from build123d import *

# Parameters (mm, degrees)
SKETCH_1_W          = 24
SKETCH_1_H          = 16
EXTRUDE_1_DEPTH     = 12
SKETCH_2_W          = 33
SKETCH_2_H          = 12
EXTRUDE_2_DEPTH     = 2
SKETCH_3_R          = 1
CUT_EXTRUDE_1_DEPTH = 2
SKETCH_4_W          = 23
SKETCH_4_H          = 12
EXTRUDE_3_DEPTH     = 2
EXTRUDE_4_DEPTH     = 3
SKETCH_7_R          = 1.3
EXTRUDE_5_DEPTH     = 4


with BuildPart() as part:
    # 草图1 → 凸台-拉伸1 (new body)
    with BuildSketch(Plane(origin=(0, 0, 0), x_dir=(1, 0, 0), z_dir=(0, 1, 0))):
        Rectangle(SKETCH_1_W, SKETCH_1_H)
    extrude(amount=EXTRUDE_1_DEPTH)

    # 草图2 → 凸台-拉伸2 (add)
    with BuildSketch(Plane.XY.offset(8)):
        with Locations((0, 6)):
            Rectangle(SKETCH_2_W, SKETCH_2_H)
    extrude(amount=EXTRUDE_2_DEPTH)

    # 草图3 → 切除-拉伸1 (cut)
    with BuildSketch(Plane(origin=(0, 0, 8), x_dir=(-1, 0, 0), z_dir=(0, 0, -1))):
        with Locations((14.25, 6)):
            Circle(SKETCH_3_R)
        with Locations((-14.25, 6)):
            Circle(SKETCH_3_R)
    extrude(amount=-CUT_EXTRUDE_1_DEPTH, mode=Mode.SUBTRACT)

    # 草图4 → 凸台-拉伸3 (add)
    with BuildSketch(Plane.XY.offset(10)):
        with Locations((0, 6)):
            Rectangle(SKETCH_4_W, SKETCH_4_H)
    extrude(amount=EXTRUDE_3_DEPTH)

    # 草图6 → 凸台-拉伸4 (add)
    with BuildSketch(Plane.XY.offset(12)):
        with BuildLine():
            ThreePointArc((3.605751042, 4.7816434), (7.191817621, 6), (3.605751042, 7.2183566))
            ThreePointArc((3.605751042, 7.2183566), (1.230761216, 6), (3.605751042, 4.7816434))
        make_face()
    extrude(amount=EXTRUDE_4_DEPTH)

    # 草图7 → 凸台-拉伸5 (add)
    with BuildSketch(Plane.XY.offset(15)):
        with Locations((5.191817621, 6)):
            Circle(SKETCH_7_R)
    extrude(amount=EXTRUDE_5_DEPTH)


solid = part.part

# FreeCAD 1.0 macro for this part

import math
import FreeCAD as App
import Part
import Sketcher


def add_polygon(sketch, points):
    """Adds a closed chain of lines whose ends are joined by coincident constraints."""
    first, n = sketch.GeometryCount, len(points)
    for a, b in zip(points, points[1:] + points[:1]):
        sketch.addGeometry(Part.LineSegment(App.Vector(*a, 0), App.Vector(*b, 0)), False)
    for i in range(n):
        sketch.addConstraint(Sketcher.Constraint("Coincident", first + i, 2, first + (i + 1) % n, 1))

doc = App.newDocument("Part")
body = doc.addObject("PartDesign::Body", "Body")

sketch1 = body.newObject("Sketcher::SketchObject", "Sketch")
sketch1.AttachmentSupport = (doc.getObject("XZ_Plane"), [""])
sketch1.MapMode = "FlatFace"
add_polygon(sketch1, [(-12, -8), (-12, 8), (12, 8), (12, -8)])
sketch1.addConstraint([
    Sketcher.Constraint("Vertical", 0),
    Sketcher.Constraint("Horizontal", 1),
    Sketcher.Constraint("Vertical", 2),
    Sketcher.Constraint("Horizontal", 3),
    Sketcher.Constraint("Symmetric", 0, 2, 2, 2, -1, 1),
    Sketcher.Constraint("DistanceX", 1, 1, 1, 2, 24.0),
    Sketcher.Constraint("DistanceY", 0, 1, 0, 2, 16.0),
])
pad1 = body.newObject("PartDesign::Pad", "Pad")
pad1.Profile = sketch1
pad1.Length = 12
pad1.Reversed = True

sketch2 = body.newObject("Sketcher::SketchObject", "Sketch001")
sketch2.AttachmentSupport = (doc.getObject("XY_Plane"), [""])
sketch2.MapMode = "FlatFace"
sketch2.AttachmentOffset = App.Placement(App.Vector(0, 0, 8), App.Rotation())
add_polygon(sketch2, [(-16.5, 12), (-16.5, 0), (16.5, 0), (16.5, 12)])
sketch2.addConstraint([
    Sketcher.Constraint("Vertical", 0),
    Sketcher.Constraint("Horizontal", 1),
    Sketcher.Constraint("Vertical", 2),
    Sketcher.Constraint("Horizontal", 3),
    Sketcher.Constraint("Symmetric", 0, 2, 1, 2, -1, 1),
    Sketcher.Constraint("DistanceX", 1, 1, 1, 2, 33.0),
    Sketcher.Constraint("DistanceY", 0, 2, 0, 1, 12.0),
])
pad2 = body.newObject("PartDesign::Pad", "Pad001")
pad2.Profile = sketch2
pad2.Length = 2

sketch3 = body.newObject("Sketcher::SketchObject", "Sketch002")
sketch3.AttachmentSupport = (doc.getObject("XY_Plane"), [""])
sketch3.MapMode = "FlatFace"
sketch3.AttachmentOffset = App.Placement(App.Vector(0, 0, 8), App.Rotation())
sketch3.addGeometry([
    Part.Circle(App.Vector(-14.25, 6, 0), App.Vector(0, 0, 1), 1),
    Part.Circle(App.Vector(14.25, 6, 0), App.Vector(0, 0, 1), 1),
], False)
sketch3.addConstraint([
    Sketcher.Constraint("Equal", 0, 1),
    Sketcher.Constraint("Symmetric", 0, 3, 1, 3, -2),
    Sketcher.Constraint("Diameter", 0, 2.0),
    Sketcher.Constraint("DistanceY", -1, 1, 0, 3, 6.0),
    Sketcher.Constraint("DistanceX", 0, 3, 1, 3, 28.5),
])
pocket1 = body.newObject("PartDesign::Pocket", "Pocket")
pocket1.Profile = sketch3
pocket1.Length = 2
pocket1.Reversed = True

sketch4 = body.newObject("Sketcher::SketchObject", "Sketch003")
sketch4.AttachmentSupport = (doc.getObject("XY_Plane"), [""])
sketch4.MapMode = "FlatFace"
sketch4.AttachmentOffset = App.Placement(App.Vector(0, 0, 10), App.Rotation())
add_polygon(sketch4, [(-11.5, 12), (-11.5, 0), (11.5, 0), (11.5, 12)])
sketch4.addConstraint([
    Sketcher.Constraint("Vertical", 0),
    Sketcher.Constraint("Horizontal", 1),
    Sketcher.Constraint("Vertical", 2),
    Sketcher.Constraint("Horizontal", 3),
    Sketcher.Constraint("Symmetric", 0, 2, 1, 2, -1, 1),
    Sketcher.Constraint("DistanceX", 1, 1, 1, 2, 23.0),
    Sketcher.Constraint("DistanceY", 0, 2, 0, 1, 12.0),
])
pad3 = body.newObject("PartDesign::Pad", "Pad002")
pad3.Profile = sketch4
pad3.Length = 2

sketch5 = body.newObject("Sketcher::SketchObject", "Sketch004")
sketch5.AttachmentSupport = (doc.getObject("XY_Plane"), [""])
sketch5.MapMode = "FlatFace"
sketch5.AttachmentOffset = App.Placement(App.Vector(0, 0, 12), App.Rotation())
sketch5.addGeometry([
    Part.ArcOfCircle(Part.Circle(App.Vector(5.191818, 6, 0), App.Vector(0, 0, 1), 2), math.radians(-142.469888), math.radians(142.469888)),
    Part.ArcOfCircle(Part.Circle(App.Vector(2.730761, 6, 0), App.Vector(0, 0, 1), 1.5), math.radians(54.315144), math.radians(305.684856)),
], False)
sketch5.addConstraint([
    Sketcher.Constraint("Coincident", 0, 1, 1, 2),
    Sketcher.Constraint("Coincident", 1, 1, 0, 2),
    Sketcher.Constraint("Horizontal", 0, 3, 1, 3),
    Sketcher.Constraint("Radius", 0, 2.0),
    Sketcher.Constraint("Radius", 1, 1.5),
    Sketcher.Constraint("DistanceY", -1, 1, 0, 3, 6.0),
    Sketcher.Constraint("DistanceX", -1, 1, 1, 3, 2.730761),
    Sketcher.Constraint("DistanceX", -1, 1, 0, 1, 3.605751),
])
pad4 = body.newObject("PartDesign::Pad", "Pad003")
pad4.Profile = sketch5
pad4.Length = 3

sketch6 = body.newObject("Sketcher::SketchObject", "Sketch005")
sketch6.AttachmentSupport = (doc.getObject("XY_Plane"), [""])
sketch6.MapMode = "FlatFace"
sketch6.AttachmentOffset = App.Placement(App.Vector(0, 0, 15), App.Rotation())
sketch6.addGeometry(Part.Circle(App.Vector(5.191818, 6, 0), App.Vector(0, 0, 1), 1.3), False)
sketch6.addConstraint([
    Sketcher.Constraint("Diameter", 0, 2.6),
    Sketcher.Constraint("DistanceY", -1, 1, 0, 3, 6.0),
    Sketcher.Constraint("DistanceX", -1, 1, 0, 3, 5.191818),
])
pad5 = body.newObject("PartDesign::Pad", "Pad004")
pad5.Profile = sketch6
pad5.Length = 4

doc.recompute()
